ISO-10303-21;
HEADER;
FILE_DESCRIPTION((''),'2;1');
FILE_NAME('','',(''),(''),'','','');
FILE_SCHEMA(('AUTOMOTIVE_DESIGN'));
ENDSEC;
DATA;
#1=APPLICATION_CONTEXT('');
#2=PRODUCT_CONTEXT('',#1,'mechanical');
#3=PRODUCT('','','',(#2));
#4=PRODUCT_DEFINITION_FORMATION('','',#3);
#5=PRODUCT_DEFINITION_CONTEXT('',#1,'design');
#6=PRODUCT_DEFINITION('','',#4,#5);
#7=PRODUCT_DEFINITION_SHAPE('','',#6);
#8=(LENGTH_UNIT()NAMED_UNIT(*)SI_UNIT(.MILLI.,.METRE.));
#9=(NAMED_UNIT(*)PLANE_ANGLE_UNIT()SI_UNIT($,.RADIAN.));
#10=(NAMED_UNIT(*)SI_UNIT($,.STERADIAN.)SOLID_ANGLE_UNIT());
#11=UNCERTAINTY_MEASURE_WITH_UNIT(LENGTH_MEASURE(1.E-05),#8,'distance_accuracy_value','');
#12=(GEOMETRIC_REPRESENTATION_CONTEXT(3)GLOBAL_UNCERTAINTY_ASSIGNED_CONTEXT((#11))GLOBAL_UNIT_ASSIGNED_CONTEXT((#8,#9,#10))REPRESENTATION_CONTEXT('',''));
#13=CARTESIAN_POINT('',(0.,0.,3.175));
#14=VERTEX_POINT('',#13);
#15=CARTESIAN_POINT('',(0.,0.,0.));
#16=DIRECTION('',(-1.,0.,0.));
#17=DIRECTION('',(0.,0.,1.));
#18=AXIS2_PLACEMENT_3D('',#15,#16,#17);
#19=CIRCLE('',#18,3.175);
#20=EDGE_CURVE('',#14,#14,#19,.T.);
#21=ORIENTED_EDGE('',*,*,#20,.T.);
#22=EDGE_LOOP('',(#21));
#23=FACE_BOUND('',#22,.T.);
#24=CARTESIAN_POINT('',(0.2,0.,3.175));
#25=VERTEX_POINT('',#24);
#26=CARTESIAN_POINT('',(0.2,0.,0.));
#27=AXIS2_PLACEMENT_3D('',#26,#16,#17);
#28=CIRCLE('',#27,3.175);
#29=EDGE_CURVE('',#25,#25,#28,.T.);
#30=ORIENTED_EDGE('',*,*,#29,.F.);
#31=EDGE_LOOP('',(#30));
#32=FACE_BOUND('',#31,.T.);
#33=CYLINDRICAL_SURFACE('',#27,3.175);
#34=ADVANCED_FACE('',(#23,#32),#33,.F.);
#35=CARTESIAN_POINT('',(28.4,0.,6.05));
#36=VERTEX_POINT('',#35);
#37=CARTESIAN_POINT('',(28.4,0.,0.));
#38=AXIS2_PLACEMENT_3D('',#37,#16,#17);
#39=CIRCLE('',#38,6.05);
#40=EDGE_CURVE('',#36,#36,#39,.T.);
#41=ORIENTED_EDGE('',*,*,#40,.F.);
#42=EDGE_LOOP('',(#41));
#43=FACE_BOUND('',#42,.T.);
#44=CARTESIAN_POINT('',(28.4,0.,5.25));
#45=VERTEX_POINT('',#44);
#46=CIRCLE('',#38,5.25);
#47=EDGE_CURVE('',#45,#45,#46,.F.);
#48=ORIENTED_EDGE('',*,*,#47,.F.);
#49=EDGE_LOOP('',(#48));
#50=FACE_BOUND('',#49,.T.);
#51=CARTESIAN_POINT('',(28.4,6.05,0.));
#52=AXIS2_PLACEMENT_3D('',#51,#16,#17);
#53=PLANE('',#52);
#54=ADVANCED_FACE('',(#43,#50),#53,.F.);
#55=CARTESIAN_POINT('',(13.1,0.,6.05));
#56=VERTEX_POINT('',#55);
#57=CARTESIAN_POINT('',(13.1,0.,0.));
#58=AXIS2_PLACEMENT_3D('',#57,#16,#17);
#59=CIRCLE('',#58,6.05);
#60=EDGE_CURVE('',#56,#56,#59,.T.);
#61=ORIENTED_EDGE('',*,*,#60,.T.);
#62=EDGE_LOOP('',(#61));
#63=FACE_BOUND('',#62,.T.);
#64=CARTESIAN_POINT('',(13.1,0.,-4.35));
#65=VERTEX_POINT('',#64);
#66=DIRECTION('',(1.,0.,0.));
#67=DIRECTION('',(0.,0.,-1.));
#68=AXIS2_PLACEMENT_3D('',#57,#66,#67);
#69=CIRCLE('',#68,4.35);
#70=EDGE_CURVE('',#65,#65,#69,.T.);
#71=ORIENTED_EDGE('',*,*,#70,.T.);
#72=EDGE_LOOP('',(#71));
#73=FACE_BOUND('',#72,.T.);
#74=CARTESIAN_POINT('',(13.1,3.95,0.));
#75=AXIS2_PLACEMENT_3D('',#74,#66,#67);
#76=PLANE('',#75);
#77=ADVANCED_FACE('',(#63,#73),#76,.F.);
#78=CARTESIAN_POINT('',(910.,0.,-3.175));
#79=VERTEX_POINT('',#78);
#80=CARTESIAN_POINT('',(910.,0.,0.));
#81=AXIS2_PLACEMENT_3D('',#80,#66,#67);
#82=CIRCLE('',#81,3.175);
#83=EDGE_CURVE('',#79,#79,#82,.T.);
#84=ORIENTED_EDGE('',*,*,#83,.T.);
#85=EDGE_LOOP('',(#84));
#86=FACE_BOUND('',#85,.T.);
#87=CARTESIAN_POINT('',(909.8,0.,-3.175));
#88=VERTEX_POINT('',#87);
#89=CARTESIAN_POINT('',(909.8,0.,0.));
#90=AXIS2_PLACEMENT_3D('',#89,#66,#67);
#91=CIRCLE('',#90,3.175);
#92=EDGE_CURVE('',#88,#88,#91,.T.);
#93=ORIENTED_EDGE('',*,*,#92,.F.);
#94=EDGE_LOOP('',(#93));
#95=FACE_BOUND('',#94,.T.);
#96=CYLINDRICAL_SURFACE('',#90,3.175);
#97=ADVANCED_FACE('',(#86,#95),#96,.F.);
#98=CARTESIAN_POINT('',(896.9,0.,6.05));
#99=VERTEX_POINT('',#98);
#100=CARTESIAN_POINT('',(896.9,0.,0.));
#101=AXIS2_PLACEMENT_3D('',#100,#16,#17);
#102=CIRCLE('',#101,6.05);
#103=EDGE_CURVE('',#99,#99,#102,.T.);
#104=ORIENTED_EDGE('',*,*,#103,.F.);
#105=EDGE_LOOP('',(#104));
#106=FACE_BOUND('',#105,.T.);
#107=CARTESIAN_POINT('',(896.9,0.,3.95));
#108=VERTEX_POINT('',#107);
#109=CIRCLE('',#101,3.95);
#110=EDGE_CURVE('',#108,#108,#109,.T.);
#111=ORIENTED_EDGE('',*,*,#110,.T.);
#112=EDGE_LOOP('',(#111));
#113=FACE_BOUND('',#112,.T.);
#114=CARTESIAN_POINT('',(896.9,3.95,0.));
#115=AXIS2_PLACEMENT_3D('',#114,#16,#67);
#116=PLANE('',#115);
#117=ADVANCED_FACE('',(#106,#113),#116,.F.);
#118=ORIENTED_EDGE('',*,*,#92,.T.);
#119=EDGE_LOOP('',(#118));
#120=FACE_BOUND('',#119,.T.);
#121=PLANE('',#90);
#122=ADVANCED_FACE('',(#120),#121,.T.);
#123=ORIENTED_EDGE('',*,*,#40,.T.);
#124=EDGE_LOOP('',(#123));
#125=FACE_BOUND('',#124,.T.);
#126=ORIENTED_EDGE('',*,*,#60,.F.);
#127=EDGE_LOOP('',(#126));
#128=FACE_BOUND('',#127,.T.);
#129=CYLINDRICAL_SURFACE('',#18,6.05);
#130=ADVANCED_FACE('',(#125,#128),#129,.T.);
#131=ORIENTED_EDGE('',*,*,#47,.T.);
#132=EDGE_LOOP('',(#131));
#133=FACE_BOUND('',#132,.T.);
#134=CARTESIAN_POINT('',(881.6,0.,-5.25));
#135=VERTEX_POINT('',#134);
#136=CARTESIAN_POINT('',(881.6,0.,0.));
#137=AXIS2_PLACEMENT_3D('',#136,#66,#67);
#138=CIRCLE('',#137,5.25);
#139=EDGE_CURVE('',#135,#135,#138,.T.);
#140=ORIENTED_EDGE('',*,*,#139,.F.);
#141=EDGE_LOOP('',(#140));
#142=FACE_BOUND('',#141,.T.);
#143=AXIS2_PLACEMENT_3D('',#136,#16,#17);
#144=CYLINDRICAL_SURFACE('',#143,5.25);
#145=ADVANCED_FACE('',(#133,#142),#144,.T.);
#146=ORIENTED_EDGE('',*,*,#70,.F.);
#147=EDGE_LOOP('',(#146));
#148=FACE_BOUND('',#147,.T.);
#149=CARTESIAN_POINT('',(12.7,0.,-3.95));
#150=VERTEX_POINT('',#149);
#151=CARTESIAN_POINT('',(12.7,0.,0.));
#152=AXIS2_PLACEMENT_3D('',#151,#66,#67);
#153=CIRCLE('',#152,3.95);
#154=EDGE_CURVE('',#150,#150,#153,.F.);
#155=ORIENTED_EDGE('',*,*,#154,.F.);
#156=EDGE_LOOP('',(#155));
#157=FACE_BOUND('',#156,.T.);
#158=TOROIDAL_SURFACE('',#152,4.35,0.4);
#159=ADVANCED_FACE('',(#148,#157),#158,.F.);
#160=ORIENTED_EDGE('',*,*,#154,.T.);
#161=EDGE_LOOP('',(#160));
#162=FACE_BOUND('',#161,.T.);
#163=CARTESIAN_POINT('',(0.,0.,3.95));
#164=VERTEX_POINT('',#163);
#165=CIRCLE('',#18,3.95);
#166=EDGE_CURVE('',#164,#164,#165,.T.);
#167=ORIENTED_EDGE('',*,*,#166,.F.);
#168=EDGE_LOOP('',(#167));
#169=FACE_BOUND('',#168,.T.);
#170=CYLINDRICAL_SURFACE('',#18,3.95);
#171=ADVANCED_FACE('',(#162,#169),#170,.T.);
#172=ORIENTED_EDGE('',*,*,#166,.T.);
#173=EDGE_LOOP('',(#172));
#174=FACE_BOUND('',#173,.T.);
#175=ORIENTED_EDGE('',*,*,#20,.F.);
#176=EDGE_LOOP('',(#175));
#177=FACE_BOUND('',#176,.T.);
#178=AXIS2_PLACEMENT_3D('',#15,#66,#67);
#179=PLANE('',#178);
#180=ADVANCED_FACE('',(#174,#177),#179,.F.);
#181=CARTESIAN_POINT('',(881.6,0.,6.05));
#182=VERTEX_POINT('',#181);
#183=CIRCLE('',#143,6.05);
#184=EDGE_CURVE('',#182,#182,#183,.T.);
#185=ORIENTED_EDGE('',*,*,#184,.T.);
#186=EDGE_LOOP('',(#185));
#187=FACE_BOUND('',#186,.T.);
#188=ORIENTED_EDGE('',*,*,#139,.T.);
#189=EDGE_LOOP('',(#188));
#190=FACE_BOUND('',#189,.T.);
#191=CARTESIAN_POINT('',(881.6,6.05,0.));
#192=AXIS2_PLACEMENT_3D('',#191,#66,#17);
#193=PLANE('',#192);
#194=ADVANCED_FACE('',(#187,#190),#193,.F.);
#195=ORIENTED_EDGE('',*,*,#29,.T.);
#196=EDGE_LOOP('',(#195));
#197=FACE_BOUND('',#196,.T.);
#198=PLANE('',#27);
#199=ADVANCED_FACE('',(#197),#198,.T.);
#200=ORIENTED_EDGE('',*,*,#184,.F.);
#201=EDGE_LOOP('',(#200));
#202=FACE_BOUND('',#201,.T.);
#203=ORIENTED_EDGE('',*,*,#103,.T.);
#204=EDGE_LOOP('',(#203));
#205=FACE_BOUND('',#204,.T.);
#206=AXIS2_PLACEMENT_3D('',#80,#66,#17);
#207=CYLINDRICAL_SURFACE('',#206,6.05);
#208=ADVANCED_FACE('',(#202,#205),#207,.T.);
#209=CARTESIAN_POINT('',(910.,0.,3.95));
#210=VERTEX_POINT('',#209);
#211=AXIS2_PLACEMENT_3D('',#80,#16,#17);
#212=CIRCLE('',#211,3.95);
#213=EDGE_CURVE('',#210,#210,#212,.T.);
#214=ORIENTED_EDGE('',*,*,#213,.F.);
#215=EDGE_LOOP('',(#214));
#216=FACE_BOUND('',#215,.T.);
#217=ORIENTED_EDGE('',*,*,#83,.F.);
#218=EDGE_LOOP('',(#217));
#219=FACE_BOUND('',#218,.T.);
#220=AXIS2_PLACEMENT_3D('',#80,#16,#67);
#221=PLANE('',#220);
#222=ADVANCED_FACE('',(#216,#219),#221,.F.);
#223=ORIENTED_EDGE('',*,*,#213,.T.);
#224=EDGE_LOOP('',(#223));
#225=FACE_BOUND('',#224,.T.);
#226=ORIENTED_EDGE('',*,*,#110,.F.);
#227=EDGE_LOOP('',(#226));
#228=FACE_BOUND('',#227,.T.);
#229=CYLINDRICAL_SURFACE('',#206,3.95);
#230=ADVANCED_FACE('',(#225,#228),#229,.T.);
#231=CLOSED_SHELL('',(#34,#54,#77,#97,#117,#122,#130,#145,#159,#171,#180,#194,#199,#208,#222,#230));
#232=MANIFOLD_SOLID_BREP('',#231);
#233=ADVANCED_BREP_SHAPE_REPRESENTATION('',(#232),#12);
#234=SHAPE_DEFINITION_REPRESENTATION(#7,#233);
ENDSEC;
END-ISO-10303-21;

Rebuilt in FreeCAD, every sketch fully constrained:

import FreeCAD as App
import Part
import Sketcher
from FreeCAD import Vector


def edges_at(feature, points):
    """Names of the edges that pass closest to the given points."""
    edges = feature.Shape.Edges
    near = lambda p: min(range(len(edges)), key=lambda i: edges[i].distToShape(Part.Vertex(*p))[0])
    return sorted({f"Edge{near(p) + 1}" for p in points})


def add_polygon(sketch, points):
    """Adds a closed chain of lines whose ends are joined by coincident constraints."""
    first, n = sketch.GeometryCount, len(points)
    for a, b in zip(points, points[1:] + points[:1]):
        sketch.addGeometry(Part.LineSegment(App.Vector(*a, 0), App.Vector(*b, 0)), False)
    for i in range(n):
        sketch.addConstraint(Sketcher.Constraint("Coincident", first + i, 2, first + (i + 1) % n, 1))

doc = App.newDocument("Part")
body = doc.addObject("PartDesign::Body", "Body")

# Sketch on XY plane
sketch1 = body.newObject("Sketcher::SketchObject", "Sketch")
sketch1.AttachmentSupport = (doc.getObject("XY_Plane"), [""])
sketch1.MapMode = "FlatFace"
add_polygon(sketch1, [(0, 4), (0, 0), (28.4, 0), (28.4, 6), (13.1, 6), (13.1, 4)])  # lines 0-5
sketch1.addConstraint([
    Sketcher.Constraint("Vertical", 0),
    Sketcher.Constraint("Horizontal", 1),
    Sketcher.Constraint("Vertical", 2),
    Sketcher.Constraint("Horizontal", 3),
    Sketcher.Constraint("Vertical", 4),
    Sketcher.Constraint("Horizontal", 5),
    Sketcher.Constraint("Coincident", 0, 2, -1, 1),
    Sketcher.Constraint("DistanceX", 1, 1, 1, 2, 28.4),
    Sketcher.Constraint("DistanceX", 3, 2, 3, 1, 15.3),
    Sketcher.Constraint("DistanceY", 4, 2, 4, 1, 2.1),
    Sketcher.Constraint("DistanceY", 0, 2, 0, 1, 3.95),
])
revolution = body.newObject("PartDesign::Revolution", "Revolution")
revolution.Profile = sketch1
revolution.ReferenceAxis = (sketch1, ["H_Axis"])
revolution.Angle = 360
doc.recompute()

fillet = body.newObject("PartDesign::Fillet", "Fillet")
fillet.Base = (revolution, edges_at(revolution, [(13.1, 0, -3.95)]))
fillet.Radius = 0.4

# Sketch on YZ plane
sketch2 = body.newObject("Sketcher::SketchObject", "Sketch001")
sketch2.AttachmentSupport = (doc.getObject("YZ_Plane"), [""])
sketch2.MapMode = "FlatFace"
sketch2.AttachmentOffset = App.Placement(Vector(0, 0, 28.4), App.Rotation())
sketch2.addGeometry(Part.Circle(Vector(0, 0, 0), Vector(0, 0, 1), 5), False)
sketch2.addConstraint([
    Sketcher.Constraint("Coincident", 0, 3, -1, 1),
    Sketcher.Constraint("Diameter", 0, 10.5),
])
pad1 = body.newObject("PartDesign::Pad", "Pad")
pad1.Profile = sketch2
pad1.Length = 853.2
doc.recompute()

datumplane = body.newObject("PartDesign::Plane", "DatumPlane")
datumplane.AttachmentSupport = (doc.getObject("YZ_Plane"), [""])
datumplane.MapMode = "FlatFace"
datumplane.AttachmentOffset = App.Placement(Vector(0, 0, 455), App.Rotation())
mirrored = body.newObject("PartDesign::Mirrored", "Mirrored")
mirrored.Originals = [revolution]
mirrored.MirrorPlane = (datumplane, [""])
body.Tip = mirrored

# Sketch on YZ plane
sketch3 = body.newObject("Sketcher::SketchObject", "Sketch002")
sketch3.AttachmentSupport = (doc.getObject("YZ_Plane"), [""])
sketch3.MapMode = "FlatFace"
sketch3.AttachmentOffset = App.Placement(Vector(0, 0, 910), App.Rotation())
sketch3.addGeometry(Part.Circle(Vector(0, 0, 0), Vector(0, 0, 1), 3.2), False)
sketch3.addConstraint([
    Sketcher.Constraint("Coincident", 0, 3, -1, 1),
    Sketcher.Constraint("Diameter", 0, 6.35),
])
pocket1 = body.newObject("PartDesign::Pocket", "Pocket")
pocket1.Profile = sketch3
pocket1.Length = 0.2

# Sketch on YZ plane
sketch4 = body.newObject("Sketcher::SketchObject", "Sketch003")
sketch4.AttachmentSupport = (doc.getObject("YZ_Plane"), [""])
sketch4.MapMode = "FlatFace"
sketch4.addGeometry(Part.Circle(Vector(0, 0, 0), Vector(0, 0, 1), 3.2), False)
sketch4.addConstraint([
    Sketcher.Constraint("Coincident", 0, 3, -1, 1),
    Sketcher.Constraint("Diameter", 0, 6.35),
])
pocket2 = body.newObject("PartDesign::Pocket", "Pocket001")
pocket2.Profile = sketch4
pocket2.Length = 0.2
pocket2.Reversed = True

doc.recompute()
